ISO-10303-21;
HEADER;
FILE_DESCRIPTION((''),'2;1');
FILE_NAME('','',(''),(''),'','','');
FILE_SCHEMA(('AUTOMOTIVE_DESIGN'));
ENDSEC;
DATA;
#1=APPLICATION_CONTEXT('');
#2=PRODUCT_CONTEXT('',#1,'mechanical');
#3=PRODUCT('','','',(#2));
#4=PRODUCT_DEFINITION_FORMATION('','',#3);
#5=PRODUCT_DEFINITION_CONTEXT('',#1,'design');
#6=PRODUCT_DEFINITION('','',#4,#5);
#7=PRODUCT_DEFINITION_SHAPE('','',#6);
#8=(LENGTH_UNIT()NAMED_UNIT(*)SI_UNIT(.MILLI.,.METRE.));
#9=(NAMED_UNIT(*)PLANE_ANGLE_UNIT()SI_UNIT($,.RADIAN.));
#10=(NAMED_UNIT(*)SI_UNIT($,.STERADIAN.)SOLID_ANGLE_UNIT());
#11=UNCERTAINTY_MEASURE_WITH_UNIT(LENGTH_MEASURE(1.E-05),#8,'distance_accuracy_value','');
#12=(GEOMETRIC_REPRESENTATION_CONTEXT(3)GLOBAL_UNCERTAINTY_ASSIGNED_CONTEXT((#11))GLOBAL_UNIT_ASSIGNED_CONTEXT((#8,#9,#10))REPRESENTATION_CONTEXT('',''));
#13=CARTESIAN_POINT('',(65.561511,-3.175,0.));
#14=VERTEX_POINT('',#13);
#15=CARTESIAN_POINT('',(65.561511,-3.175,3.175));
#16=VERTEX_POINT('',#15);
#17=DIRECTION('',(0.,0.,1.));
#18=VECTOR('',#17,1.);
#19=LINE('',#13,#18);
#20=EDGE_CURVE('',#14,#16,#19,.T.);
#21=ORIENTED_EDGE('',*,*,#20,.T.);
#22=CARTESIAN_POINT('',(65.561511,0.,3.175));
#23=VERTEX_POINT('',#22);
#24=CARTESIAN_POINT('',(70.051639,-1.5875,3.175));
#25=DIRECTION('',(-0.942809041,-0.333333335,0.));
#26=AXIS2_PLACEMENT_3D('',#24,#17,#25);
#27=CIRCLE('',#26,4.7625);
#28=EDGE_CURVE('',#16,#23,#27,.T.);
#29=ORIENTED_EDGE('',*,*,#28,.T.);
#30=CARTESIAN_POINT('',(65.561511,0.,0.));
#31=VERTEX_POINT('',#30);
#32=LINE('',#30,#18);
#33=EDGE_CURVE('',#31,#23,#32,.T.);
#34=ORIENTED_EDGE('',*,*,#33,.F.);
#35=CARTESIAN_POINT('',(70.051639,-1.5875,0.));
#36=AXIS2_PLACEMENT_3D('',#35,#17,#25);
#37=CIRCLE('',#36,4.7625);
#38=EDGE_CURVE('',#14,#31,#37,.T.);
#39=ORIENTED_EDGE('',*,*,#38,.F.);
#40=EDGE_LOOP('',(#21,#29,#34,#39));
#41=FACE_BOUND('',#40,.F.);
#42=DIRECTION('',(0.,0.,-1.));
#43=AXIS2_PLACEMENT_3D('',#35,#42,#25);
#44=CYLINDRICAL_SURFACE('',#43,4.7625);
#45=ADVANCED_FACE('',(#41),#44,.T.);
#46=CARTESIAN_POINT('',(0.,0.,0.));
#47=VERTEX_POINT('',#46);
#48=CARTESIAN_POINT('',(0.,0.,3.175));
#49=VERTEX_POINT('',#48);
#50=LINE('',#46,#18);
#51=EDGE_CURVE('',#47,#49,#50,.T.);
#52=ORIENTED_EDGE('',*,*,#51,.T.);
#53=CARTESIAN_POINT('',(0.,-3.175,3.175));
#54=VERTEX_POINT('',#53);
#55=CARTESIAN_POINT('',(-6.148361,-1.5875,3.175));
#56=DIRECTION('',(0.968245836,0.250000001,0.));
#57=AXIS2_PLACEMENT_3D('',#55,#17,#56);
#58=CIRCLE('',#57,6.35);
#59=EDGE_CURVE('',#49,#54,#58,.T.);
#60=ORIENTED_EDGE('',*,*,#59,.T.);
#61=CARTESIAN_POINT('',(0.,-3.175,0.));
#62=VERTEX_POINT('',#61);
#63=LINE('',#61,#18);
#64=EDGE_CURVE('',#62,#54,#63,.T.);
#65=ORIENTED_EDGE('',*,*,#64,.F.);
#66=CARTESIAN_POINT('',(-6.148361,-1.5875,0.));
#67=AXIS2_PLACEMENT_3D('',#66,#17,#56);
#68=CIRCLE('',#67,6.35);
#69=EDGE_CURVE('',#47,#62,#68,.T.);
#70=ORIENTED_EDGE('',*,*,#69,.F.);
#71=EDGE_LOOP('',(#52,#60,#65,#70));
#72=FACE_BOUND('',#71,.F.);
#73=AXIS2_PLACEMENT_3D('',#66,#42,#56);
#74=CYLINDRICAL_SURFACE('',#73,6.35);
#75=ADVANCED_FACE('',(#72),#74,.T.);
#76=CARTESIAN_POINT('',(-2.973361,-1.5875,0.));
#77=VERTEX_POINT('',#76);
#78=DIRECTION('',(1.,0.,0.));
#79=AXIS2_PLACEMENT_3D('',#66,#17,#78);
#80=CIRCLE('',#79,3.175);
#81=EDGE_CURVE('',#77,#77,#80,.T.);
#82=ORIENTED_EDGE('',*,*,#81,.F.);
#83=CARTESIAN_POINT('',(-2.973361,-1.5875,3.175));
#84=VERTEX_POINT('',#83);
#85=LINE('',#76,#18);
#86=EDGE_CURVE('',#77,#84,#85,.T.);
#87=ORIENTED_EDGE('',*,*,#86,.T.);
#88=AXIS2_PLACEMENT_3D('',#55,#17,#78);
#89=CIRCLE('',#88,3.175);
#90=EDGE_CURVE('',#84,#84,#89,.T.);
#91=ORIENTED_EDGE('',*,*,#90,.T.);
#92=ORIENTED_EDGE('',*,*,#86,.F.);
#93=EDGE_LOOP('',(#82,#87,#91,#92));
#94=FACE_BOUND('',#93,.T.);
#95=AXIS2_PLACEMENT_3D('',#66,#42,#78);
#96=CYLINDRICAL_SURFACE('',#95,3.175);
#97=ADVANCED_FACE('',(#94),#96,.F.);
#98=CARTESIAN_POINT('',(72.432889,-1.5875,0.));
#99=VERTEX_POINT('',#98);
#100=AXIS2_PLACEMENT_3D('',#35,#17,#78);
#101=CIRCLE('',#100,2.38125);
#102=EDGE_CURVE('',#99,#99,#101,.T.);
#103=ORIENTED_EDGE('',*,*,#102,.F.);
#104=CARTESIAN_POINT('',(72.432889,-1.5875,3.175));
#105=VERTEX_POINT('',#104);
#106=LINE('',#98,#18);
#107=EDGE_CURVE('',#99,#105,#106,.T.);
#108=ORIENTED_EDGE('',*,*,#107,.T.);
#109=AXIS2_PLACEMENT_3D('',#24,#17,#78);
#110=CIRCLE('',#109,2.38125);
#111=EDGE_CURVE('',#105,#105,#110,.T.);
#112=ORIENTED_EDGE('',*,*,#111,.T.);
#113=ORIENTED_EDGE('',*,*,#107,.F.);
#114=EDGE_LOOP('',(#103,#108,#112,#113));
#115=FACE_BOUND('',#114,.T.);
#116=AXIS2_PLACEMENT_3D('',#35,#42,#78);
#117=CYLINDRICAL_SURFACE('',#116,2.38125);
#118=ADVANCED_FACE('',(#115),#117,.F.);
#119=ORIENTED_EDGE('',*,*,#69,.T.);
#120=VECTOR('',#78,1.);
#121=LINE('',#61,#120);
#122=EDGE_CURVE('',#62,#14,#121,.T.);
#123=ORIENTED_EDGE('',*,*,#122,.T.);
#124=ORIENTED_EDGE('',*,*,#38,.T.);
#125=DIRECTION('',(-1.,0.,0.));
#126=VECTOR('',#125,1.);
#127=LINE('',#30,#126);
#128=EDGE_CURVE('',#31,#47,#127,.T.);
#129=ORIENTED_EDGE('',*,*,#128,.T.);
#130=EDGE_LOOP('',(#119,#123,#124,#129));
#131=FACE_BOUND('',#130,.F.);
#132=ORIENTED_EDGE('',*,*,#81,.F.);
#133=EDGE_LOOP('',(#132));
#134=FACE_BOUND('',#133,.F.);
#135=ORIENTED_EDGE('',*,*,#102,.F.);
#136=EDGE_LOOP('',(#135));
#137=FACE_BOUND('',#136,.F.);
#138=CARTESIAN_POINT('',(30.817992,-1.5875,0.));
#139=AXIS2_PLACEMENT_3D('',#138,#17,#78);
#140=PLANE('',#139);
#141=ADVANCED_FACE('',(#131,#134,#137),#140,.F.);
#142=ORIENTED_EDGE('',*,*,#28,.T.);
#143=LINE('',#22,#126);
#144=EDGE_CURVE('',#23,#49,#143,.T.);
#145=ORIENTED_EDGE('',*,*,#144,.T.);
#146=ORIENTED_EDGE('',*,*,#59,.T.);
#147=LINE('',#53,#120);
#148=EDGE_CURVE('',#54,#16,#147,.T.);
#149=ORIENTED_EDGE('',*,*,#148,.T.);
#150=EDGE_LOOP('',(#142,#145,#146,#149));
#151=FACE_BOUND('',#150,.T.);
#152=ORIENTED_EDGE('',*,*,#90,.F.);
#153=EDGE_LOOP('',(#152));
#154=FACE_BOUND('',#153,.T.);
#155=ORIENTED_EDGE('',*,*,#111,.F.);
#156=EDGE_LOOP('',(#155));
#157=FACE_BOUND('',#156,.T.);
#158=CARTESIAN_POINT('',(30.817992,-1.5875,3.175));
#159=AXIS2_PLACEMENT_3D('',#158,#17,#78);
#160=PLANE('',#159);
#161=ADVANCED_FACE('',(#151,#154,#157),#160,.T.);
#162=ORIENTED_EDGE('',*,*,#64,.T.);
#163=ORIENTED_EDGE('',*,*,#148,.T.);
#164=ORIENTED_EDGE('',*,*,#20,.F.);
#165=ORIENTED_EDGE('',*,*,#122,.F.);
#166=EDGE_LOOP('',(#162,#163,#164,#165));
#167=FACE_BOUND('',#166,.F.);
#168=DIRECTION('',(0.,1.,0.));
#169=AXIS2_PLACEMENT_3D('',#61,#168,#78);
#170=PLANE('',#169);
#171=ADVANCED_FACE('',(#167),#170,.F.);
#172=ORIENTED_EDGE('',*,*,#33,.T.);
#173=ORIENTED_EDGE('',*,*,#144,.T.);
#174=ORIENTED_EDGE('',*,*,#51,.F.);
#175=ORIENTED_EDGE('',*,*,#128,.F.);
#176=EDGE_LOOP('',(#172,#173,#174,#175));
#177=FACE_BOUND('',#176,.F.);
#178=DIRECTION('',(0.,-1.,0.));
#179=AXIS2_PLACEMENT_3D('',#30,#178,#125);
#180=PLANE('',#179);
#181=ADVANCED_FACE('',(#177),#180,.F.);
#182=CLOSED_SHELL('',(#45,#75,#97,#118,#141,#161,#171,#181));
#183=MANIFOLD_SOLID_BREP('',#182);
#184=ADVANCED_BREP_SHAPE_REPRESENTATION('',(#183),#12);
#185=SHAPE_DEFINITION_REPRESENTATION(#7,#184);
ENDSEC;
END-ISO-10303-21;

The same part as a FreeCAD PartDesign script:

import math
import FreeCAD as App
import Part
import Sketcher
Q = App.Units.Quantity

doc = App.newDocument("Part")
body = doc.addObject("PartDesign::Body", "Body")

sketch1 = body.newObject("Sketcher::SketchObject", "Sketch")
sketch1.AttachmentSupport = (doc.getObject("XY_Plane"), [""])
sketch1.MapMode = "FlatFace"
sketch1.addGeometry(Part.LineSegment(App.Vector(65.6, 0, 0), App.Vector(0, 0, 0)), False)
sketch1.addGeometry(Part.ArcOfCircle(Part.Circle(App.Vector(-6.1, -1.6, 0), App.Vector(0, 0, 1), 6.3), math.radians(14), math.radians(346)), False)
sketch1.addGeometry(Part.LineSegment(App.Vector(0, -3.2, 0), App.Vector(65.6, -3.2, 0)), False)
sketch1.addGeometry(Part.ArcOfCircle(Part.Circle(App.Vector(70.1, -1.6, 0), App.Vector(0, 0, 1), 4.8), math.radians(-161), math.radians(161)), False)
sketch1.addGeometry(Part.Circle(App.Vector(-6.1, -1.6, 0), App.Vector(0, 0, 1), 3.2), False)
sketch1.addGeometry(Part.Circle(App.Vector(70.1, -1.6, 0), App.Vector(0, 0, 1), 2.4), False)
sketch1.addConstraint(Sketcher.Constraint("Coincident", 0, 2, 1, 1))
sketch1.addConstraint(Sketcher.Constraint("Coincident", 1, 2, 2, 1))
sketch1.addConstraint(Sketcher.Constraint("Coincident", 2, 2, 3, 1))
sketch1.addConstraint(Sketcher.Constraint("Coincident", 3, 2, 0, 1))
sketch1.addConstraint(Sketcher.Constraint("Horizontal", 0))
sketch1.addConstraint(Sketcher.Constraint("Horizontal", 2))
sketch1.addConstraint(Sketcher.Constraint("Coincident", 0, 2, -1, 1))
sketch1.addConstraint(Sketcher.Constraint("Coincident", 4, 3, 1, 3))
sketch1.addConstraint(Sketcher.Constraint("Coincident", 5, 3, 3, 3))
sketch1.addConstraint(Sketcher.Constraint("PointOnObject", 1, 2, -2))
sketch1.addConstraint(Sketcher.Constraint("Horizontal", 1, 3, 3, 3))
sketch1.addConstraint(Sketcher.Constraint("Diameter", 4, Q("0.25 in")))
sketch1.addConstraint(Sketcher.Constraint("Radius", 1, Q("0.25 in")))
sketch1.addConstraint(Sketcher.Constraint("Diameter", 5, Q("0.1875 in")))
sketch1.addConstraint(Sketcher.Constraint("Radius", 3, Q("0.1875 in")))
sketch1.addConstraint(Sketcher.Constraint("DistanceX", 1, 3, 3, 3, Q("3 in")))
sketch1.addConstraint(Sketcher.Constraint("DistanceY", 1, 3, -1, 1, Q("0.0625 in")))
pad1 = body.newObject("PartDesign::Pad", "Pad")
pad1.Profile = sketch1
pad1.Length = Q("0.125 in")

doc.recompute()
